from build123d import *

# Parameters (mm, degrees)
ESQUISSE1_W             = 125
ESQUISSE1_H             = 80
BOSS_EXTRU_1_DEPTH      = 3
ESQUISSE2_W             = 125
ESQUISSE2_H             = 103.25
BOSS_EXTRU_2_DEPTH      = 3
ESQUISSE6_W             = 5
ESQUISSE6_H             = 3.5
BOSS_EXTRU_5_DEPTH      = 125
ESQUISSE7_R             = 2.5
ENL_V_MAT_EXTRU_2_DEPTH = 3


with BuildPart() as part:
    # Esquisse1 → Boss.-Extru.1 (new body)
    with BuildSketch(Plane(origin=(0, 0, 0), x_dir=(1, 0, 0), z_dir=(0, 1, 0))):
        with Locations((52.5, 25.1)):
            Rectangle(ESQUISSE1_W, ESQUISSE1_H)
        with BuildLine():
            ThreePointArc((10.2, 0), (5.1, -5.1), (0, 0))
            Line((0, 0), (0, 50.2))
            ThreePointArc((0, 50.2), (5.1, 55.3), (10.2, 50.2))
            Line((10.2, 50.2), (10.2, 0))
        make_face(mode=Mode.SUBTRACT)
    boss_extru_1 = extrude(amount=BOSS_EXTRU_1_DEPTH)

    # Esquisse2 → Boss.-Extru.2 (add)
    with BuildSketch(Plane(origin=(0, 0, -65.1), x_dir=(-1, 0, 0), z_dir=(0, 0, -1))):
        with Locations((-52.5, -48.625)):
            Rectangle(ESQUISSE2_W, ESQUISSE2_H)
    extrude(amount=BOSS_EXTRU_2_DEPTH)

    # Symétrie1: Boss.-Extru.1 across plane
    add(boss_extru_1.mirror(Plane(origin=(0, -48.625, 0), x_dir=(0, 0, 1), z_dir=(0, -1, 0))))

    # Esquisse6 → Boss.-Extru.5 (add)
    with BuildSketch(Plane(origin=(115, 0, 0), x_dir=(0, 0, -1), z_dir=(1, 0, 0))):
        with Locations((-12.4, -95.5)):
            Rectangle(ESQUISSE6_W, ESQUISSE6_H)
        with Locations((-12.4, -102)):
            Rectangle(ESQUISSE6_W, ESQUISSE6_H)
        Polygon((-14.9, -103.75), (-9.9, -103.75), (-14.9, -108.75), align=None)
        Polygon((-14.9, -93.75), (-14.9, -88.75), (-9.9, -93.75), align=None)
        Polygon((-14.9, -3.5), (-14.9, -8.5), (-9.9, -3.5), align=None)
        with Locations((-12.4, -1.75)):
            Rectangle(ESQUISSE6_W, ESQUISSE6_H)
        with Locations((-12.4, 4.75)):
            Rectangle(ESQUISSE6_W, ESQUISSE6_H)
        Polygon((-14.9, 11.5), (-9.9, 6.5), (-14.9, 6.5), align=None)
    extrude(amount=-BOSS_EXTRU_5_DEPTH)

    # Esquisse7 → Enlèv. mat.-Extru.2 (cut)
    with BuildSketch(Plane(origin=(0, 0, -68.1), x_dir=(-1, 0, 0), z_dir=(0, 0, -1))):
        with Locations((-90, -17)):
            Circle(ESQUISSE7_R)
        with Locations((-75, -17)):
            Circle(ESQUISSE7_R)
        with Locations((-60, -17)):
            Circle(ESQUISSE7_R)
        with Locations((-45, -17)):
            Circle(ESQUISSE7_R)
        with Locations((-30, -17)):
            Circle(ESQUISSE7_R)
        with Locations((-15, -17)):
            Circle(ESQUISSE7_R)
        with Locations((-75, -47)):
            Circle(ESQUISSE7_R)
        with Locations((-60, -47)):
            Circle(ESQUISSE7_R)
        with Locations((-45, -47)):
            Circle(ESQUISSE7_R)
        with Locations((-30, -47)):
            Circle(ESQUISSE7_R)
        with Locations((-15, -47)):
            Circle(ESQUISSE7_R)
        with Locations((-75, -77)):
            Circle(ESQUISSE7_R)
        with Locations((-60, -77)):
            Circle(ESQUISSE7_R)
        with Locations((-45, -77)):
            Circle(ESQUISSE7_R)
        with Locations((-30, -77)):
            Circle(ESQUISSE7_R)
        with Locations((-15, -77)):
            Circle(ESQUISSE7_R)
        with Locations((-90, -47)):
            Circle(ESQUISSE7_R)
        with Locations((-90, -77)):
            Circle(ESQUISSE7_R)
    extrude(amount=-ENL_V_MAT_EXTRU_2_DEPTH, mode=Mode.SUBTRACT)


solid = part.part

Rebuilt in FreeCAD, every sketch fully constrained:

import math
import FreeCAD as App
import Part
import Sketcher
Q = App.Units.Quantity

doc = App.newDocument("Part")
body = doc.addObject("PartDesign::Body", "Body")

# Sketch on XZ plane
sketch1 = doc.addObject("Sketcher::SketchObject", "Sketch")
body.addObject(sketch1)
sketch1.AttachmentSupport = (doc.XZ_Plane, [""])
sketch1.MapMode = "FlatFace"
sketch1.addGeometry([
    Part.LineSegment(App.Vector(-10, -65, 0), App.Vector(-10, 15, 0)),  # 0
    Part.LineSegment(App.Vector(-10, 15, 0), App.Vector(115, 15, 0)),  # 1
    Part.LineSegment(App.Vector(115, 15, 0), App.Vector(115, -65, 0)),  # 2
    Part.LineSegment(App.Vector(115, -65, 0), App.Vector(-10, -65, 0)),  # 3
    Part.LineSegment(App.Vector(10, -50, 0), App.Vector(10, 0, 0)),  # 4
    Part.ArcOfCircle(Part.Circle(App.Vector(5, 0, 0), App.Vector(0, 0, 1), 5), math.radians(0), math.radians(180)),  # 5
    Part.LineSegment(App.Vector(0, 0, 0), App.Vector(0, -50, 0)),  # 6
    Part.ArcOfCircle(Part.Circle(App.Vector(5, -50, 0), App.Vector(0, 0, 1), 5), math.radians(180), math.radians(360)),  # 7
], False)
sketch1.addConstraint([
    Sketcher.Constraint("Coincident", 0, 2, 1, 1),
    Sketcher.Constraint("Coincident", 1, 2, 2, 1),
    Sketcher.Constraint("Coincident", 2, 2, 3, 1),
    Sketcher.Constraint("Coincident", 3, 2, 0, 1),
    Sketcher.Constraint("Tangent", 4, 2, 5, 1),
    Sketcher.Constraint("Tangent", 5, 2, 6, 1),
    Sketcher.Constraint("Tangent", 6, 2, 7, 1),
    Sketcher.Constraint("Tangent", 7, 2, 4, 1),
    Sketcher.Constraint("Vertical", 0),
    Sketcher.Constraint("Horizontal", 1),
    Sketcher.Constraint("Vertical", 2),
    Sketcher.Constraint("Horizontal", 3),
    Sketcher.Constraint("Vertical", 4),
    Sketcher.Constraint("Vertical", 6),
    Sketcher.Constraint("Coincident", 5, 2, -1, 1),
    Sketcher.Constraint("Radius", 5, Q("5.1 mm")),
    Sketcher.Constraint("DistanceX", 1, 1, 1, 2, Q("125 mm")),
    Sketcher.Constraint("DistanceY", 0, 1, 0, 2, Q("80 mm")),
    Sketcher.Constraint("DistanceY", 4, 1, 4, 2, Q("50.2 mm")),
    Sketcher.Constraint("DistanceX", 0, 2, -1, 1, Q("10 mm")),
    Sketcher.Constraint("DistanceY", -1, 1, 0, 2, Q("14.9 mm")),
])
pad1 = doc.addObject("PartDesign::Pad", "Pad")
body.addObject(pad1)
pad1.Profile = sketch1
pad1.Length = 3
pad1.Reversed = True

# Sketch on XY plane
sketch2 = doc.addObject("Sketcher::SketchObject", "Sketch001")
body.addObject(sketch2)
sketch2.AttachmentSupport = (doc.XY_Plane, [""])
sketch2.MapMode = "FlatFace"
sketch2.AttachmentOffset = App.Placement(App.Vector(0, 0, -65.1), App.Rotation())
sketch2.addGeometry([
    Part.LineSegment(App.Vector(115, 3, 0), App.Vector(115, -100, 0)),
    Part.LineSegment(App.Vector(115, -100, 0), App.Vector(-10, -100, 0)),
    Part.LineSegment(App.Vector(-10, -100, 0), App.Vector(-10, 3, 0)),
    Part.LineSegment(App.Vector(-10, 3, 0), App.Vector(115, 3, 0)),
], False)
sketch2.addConstraint([
    Sketcher.Constraint("Coincident", 0, 2, 1, 1),
    Sketcher.Constraint("Coincident", 1, 2, 2, 1),
    Sketcher.Constraint("Coincident", 2, 2, 3, 1),
    Sketcher.Constraint("Coincident", 3, 2, 0, 1),
    Sketcher.Constraint("Vertical", 0),
    Sketcher.Constraint("Horizontal", 1),
    Sketcher.Constraint("Vertical", 2),
    Sketcher.Constraint("Horizontal", 3),
    Sketcher.Constraint("DistanceX", 1, 2, 1, 1, Q("125 mm")),
    Sketcher.Constraint("DistanceX", -1, 1, 0, 2, Q("115 mm")),
    Sketcher.Constraint("DistanceY", -1, 1, 2, 2, Q("3 mm")),
    Sketcher.Constraint("DistanceY", 0, 2, 0, 1, Q("103.25 mm")),
])
pad2 = doc.addObject("PartDesign::Pad", "Pad001")
body.addObject(pad2)
pad2.Profile = sketch2
pad2.Length = 3
pad2.Reversed = True
doc.recompute()

datumplane = doc.addObject("PartDesign::Plane", "DatumPlane")
body.addObject(datumplane)
datumplane.AttachmentSupport = (doc.XZ_Plane, [""])
datumplane.MapMode = "FlatFace"
datumplane.AttachmentOffset = App.Placement(App.Vector(0, 0, 48.625), App.Rotation())
mirrored = doc.addObject("PartDesign::Mirrored", "Mirrored")
body.addObject(mirrored)
mirrored.Originals = [pad1]
mirrored.MirrorPlane = (datumplane, [""])
body.Tip = mirrored

# Sketch on YZ plane
sketch3 = doc.addObject("Sketcher::SketchObject", "Sketch002")
body.addObject(sketch3)
sketch3.AttachmentSupport = (doc.YZ_Plane, [""])
sketch3.MapMode = "FlatFace"
sketch3.AttachmentOffset = App.Placement(App.Vector(0, 0, 115), App.Rotation())
sketch3.addGeometry([
    Part.LineSegment(App.Vector(-97.2, 14.9, 0), App.Vector(-97.2, 9.9, 0)),  # 0
    Part.LineSegment(App.Vector(-97.2, 9.9, 0), App.Vector(-93.8, 9.9, 0)),  # 1
    Part.LineSegment(App.Vector(-93.8, 9.9, 0), App.Vector(-88.8, 14.9, 0)),  # 2
    Part.LineSegment(App.Vector(-88.8, 14.9, 0), App.Vector(-97.2, 14.9, 0)),  # 3
    Part.LineSegment(App.Vector(-100.2, 14.9, 0), App.Vector(-108.8, 14.9, 0)),  # 4
    Part.LineSegment(App.Vector(-108.8, 14.9, 0), App.Vector(-103.8, 9.9, 0)),  # 5
    Part.LineSegment(App.Vector(-103.8, 9.9, 0), App.Vector(-100.2, 9.9, 0)),  # 6
    Part.LineSegment(App.Vector(-100.2, 9.9, 0), App.Vector(-100.2, 14.9, 0)),  # 7
    Part.LineSegment(App.Vector(-8.5, 14.9, 0), App.Vector(-3.5, 9.9, 0)),  # 8
    Part.LineSegment(App.Vector(-3.5, 9.9, 0), App.Vector(0, 9.9, 0)),  # 9
    Part.LineSegment(App.Vector(0, 9.9, 0), App.Vector(0, 14.9, 0)),  # 10
    Part.LineSegment(App.Vector(0, 14.9, 0), App.Vector(-8.5, 14.9, 0)),  # 11
    Part.LineSegment(App.Vector(3, 14.9, 0), App.Vector(3, 9.9, 0)),  # 12
    Part.LineSegment(App.Vector(3, 9.9, 0), App.Vector(6.5, 9.9, 0)),  # 13
    Part.LineSegment(App.Vector(6.5, 9.9, 0), App.Vector(11.5, 14.9, 0)),  # 14
    Part.LineSegment(App.Vector(11.5, 14.9, 0), App.Vector(3, 14.9, 0)),  # 15
], False)
sketch3.addConstraint([
    Sketcher.Constraint("Coincident", 0, 2, 1, 1),
    Sketcher.Constraint("Coincident", 1, 2, 2, 1),
    Sketcher.Constraint("Coincident", 2, 2, 3, 1),
    Sketcher.Constraint("Coincident", 3, 2, 0, 1),
    Sketcher.Constraint("Coincident", 4, 2, 5, 1),
    Sketcher.Constraint("Coincident", 5, 2, 6, 1),
    Sketcher.Constraint("Coincident", 6, 2, 7, 1),
    Sketcher.Constraint("Coincident", 7, 2, 4, 1),
    Sketcher.Constraint("Coincident", 8, 2, 9, 1),
    Sketcher.Constraint("Coincident", 9, 2, 10, 1),
    Sketcher.Constraint("Coincident", 10, 2, 11, 1),
    Sketcher.Constraint("Coincident", 11, 2, 8, 1),
    Sketcher.Constraint("Coincident", 12, 2, 13, 1),
    Sketcher.Constraint("Coincident", 13, 2, 14, 1),
    Sketcher.Constraint("Coincident", 14, 2, 15, 1),
    Sketcher.Constraint("Coincident", 15, 2, 12, 1),
    Sketcher.Constraint("Vertical", 0),
    Sketcher.Constraint("Horizontal", 1),
    Sketcher.Constraint("Horizontal", 3),
    Sketcher.Constraint("Horizontal", 4),
    Sketcher.Constraint("Horizontal", 6),
    Sketcher.Constraint("Vertical", 7),
    Sketcher.Constraint("Horizontal", 9),
    Sketcher.Constraint("Vertical", 10),
    Sketcher.Constraint("Horizontal", 11),
    Sketcher.Constraint("Vertical", 12),
    Sketcher.Constraint("Horizontal", 13),
    Sketcher.Constraint("Horizontal", 15),
    Sketcher.Constraint("PointOnObject", 9, 2, -2),
    Sketcher.Constraint("Perpendicular", 2, 5),
    Sketcher.Constraint("Parallel", 5, 8),
    Sketcher.Constraint("Perpendicular", 8, 14),
    Sketcher.Constraint("Horizontal", 3, 2, 4, 2),
    Sketcher.Constraint("Horizontal", 1, 2, 5, 2),
    Sketcher.Constraint("Horizontal", 6, 2, 8, 2),
    Sketcher.Constraint("Horizontal", 7, 2, 10, 2),
    Sketcher.Constraint("Horizontal", 9, 2, 12, 2),
    Sketcher.Constraint("Horizontal", 11, 2, 14, 2),
    Sketcher.Constraint("Equal", 3, 4),
    Sketcher.Constraint("Equal", 1, 6),
    Sketcher.Constraint("Equal", 6, 9),
    Sketcher.Constraint("Equal", 9, 13),
    Sketcher.Constraint("DistanceY", 0, 2, 0, 1, Q("5 mm")),
    Sketcher.Constraint("DistanceX", 1, 1, 1, 2, Q("3.5 mm")),
    Sketcher.Constraint("DistanceX", -1, 1, 12, 2, Q("3 mm")),
    Sketcher.Constraint("DistanceX", 4, 2, 1, 2, Q("15 mm")),
    Sketcher.Constraint("DistanceY", -1, 1, 0, 2, Q("9.9 mm")),
    Sketcher.Constraint("DistanceX", 0, 2, -1, 1, Q("97.25 mm")),
])
pad3 = doc.addObject("PartDesign::Pad", "Pad002")
body.addObject(pad3)
pad3.Profile = sketch3
pad3.Length = 125
pad3.Reversed = True

# Sketch on XY plane
sketch4 = doc.addObject("Sketcher::SketchObject", "Sketch003")
body.addObject(sketch4)
sketch4.AttachmentSupport = (doc.XY_Plane, [""])
sketch4.MapMode = "FlatFace"
sketch4.AttachmentOffset = App.Placement(App.Vector(0, 0, -68.1), App.Rotation())
sketch4.addGeometry([
    Part.Circle(App.Vector(90, -17, 0), App.Vector(0, 0, 1), 2.5),  # 0
    Part.Circle(App.Vector(75, -17, 0), App.Vector(0, 0, 1), 2.5),  # 1
    Part.Circle(App.Vector(60, -17, 0), App.Vector(0, 0, 1), 2.5),  # 2
    Part.Circle(App.Vector(45, -17, 0), App.Vector(0, 0, 1), 2.5),  # 3
    Part.Circle(App.Vector(30, -17, 0), App.Vector(0, 0, 1), 2.5),  # 4
    Part.Circle(App.Vector(15, -17, 0), App.Vector(0, 0, 1), 2.5),  # 5
    Part.Circle(App.Vector(75, -47, 0), App.Vector(0, 0, 1), 2.5),  # 6
    Part.Circle(App.Vector(60, -47, 0), App.Vector(0, 0, 1), 2.5),  # 7
    Part.Circle(App.Vector(45, -47, 0), App.Vector(0, 0, 1), 2.5),  # 8
    Part.Circle(App.Vector(30, -47, 0), App.Vector(0, 0, 1), 2.5),  # 9
    Part.Circle(App.Vector(15, -47, 0), App.Vector(0, 0, 1), 2.5),  # 10
    Part.Circle(App.Vector(75, -77, 0), App.Vector(0, 0, 1), 2.5),  # 11
    Part.Circle(App.Vector(60, -77, 0), App.Vector(0, 0, 1), 2.5),  # 12
    Part.Circle(App.Vector(45, -77, 0), App.Vector(0, 0, 1), 2.5),  # 13
    Part.Circle(App.Vector(30, -77, 0), App.Vector(0, 0, 1), 2.5),  # 14
    Part.Circle(App.Vector(15, -77, 0), App.Vector(0, 0, 1), 2.5),  # 15
    Part.Circle(App.Vector(90, -47, 0), App.Vector(0, 0, 1), 2.5),  # 16
    Part.Circle(App.Vector(90, -77, 0), App.Vector(0, 0, 1), 2.5),  # 17
], False)
sketch4.addConstraint([
    Sketcher.Constraint("Equal", 0, 1),
    Sketcher.Constraint("Equal", 1, 2),
    Sketcher.Constraint("Equal", 2, 3),
    Sketcher.Constraint("Equal", 3, 4),
    Sketcher.Constraint("Equal", 4, 5),
    Sketcher.Constraint("Equal", 5, 6),
    Sketcher.Constraint("Equal", 6, 7),
    Sketcher.Constraint("Equal", 7, 8),
    Sketcher.Constraint("Equal", 8, 9),
    Sketcher.Constraint("Equal", 9, 10),
    Sketcher.Constraint("Equal", 10, 11),
    Sketcher.Constraint("Equal", 11, 12),
    Sketcher.Constraint("Equal", 12, 13),
    Sketcher.Constraint("Equal", 13, 14),
    Sketcher.Constraint("Equal", 14, 15),
    Sketcher.Constraint("Equal", 15, 16),
    Sketcher.Constraint("Equal", 16, 17),
    Sketcher.Constraint("Horizontal", 0, 3, 1, 3),
    Sketcher.Constraint("Horizontal", 1, 3, 2, 3),
    Sketcher.Constraint("Horizontal", 2, 3, 3, 3),
    Sketcher.Constraint("Horizontal", 3, 3, 4, 3),
    Sketcher.Constraint("Horizontal", 4, 3, 5, 3),
    Sketcher.Constraint("Horizontal", 6, 3, 7, 3),
    Sketcher.Constraint("Horizontal", 7, 3, 8, 3),
    Sketcher.Constraint("Horizontal", 8, 3, 9, 3),
    Sketcher.Constraint("Horizontal", 9, 3, 10, 3),
    Sketcher.Constraint("Horizontal", 11, 3, 12, 3),
    Sketcher.Constraint("Horizontal", 12, 3, 13, 3),
    Sketcher.Constraint("Horizontal", 13, 3, 14, 3),
    Sketcher.Constraint("Horizontal", 14, 3, 15, 3),
    Sketcher.Constraint("Horizontal", 10, 3, 16, 3),
    Sketcher.Constraint("Horizontal", 15, 3, 17, 3),
    Sketcher.Constraint("Vertical", 1, 3, 6, 3),
    Sketcher.Constraint("Vertical", 2, 3, 7, 3),
    Sketcher.Constraint("Vertical", 3, 3, 8, 3),
    Sketcher.Constraint("Vertical", 4, 3, 9, 3),
    Sketcher.Constraint("Vertical", 5, 3, 10, 3),
    Sketcher.Constraint("Vertical", 6, 3, 11, 3),
    Sketcher.Constraint("Vertical", 7, 3, 12, 3),
    Sketcher.Constraint("Vertical", 8, 3, 13, 3),
    Sketcher.Constraint("Vertical", 9, 3, 14, 3),
    Sketcher.Constraint("Vertical", 10, 3, 15, 3),
    Sketcher.Constraint("Vertical", 0, 3, 16, 3),
    Sketcher.Constraint("Vertical", 16, 3, 17, 3),
    Sketcher.Constraint("Diameter", 0, Q("5 mm")),
    Sketcher.Constraint("DistanceX", -1, 1, 0, 3, Q("90 mm")),
    Sketcher.Constraint("DistanceY", 0, 3, -1, 1, Q("17 mm")),
    Sketcher.Constraint("DistanceX", -1, 1, 1, 3, Q("75 mm")),
    Sketcher.Constraint("DistanceX", -1, 1, 2, 3, Q("60 mm")),
    Sketcher.Constraint("DistanceX", -1, 1, 3, 3, Q("45 mm")),
    Sketcher.Constraint("DistanceX", -1, 1, 4, 3, Q("30 mm")),
    Sketcher.Constraint("DistanceX", -1, 1, 5, 3, Q("15 mm")),
    Sketcher.Constraint("DistanceY", 6, 3, -1, 1, Q("47 mm")),
    Sketcher.Constraint("DistanceY", 11, 3, -1, 1, Q("77 mm")),
])
pocket1 = doc.addObject("PartDesign::Pocket", "Pocket")
body.addObject(pocket1)
pocket1.Profile = sketch4
pocket1.Length = 3
pocket1.Reversed = True

doc.recompute()
